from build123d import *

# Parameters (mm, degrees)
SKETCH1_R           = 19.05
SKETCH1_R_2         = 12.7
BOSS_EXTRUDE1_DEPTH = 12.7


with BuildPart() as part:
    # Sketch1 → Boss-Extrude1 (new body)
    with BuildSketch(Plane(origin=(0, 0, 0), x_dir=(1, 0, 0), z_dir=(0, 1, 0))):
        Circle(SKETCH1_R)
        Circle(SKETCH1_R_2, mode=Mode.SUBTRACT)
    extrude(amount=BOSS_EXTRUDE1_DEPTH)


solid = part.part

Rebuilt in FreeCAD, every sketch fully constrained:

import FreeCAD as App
import Part
import Sketcher
from FreeCAD import Vector
Q = App.Units.Quantity

doc = App.newDocument("Part")
body = doc.addObject("PartDesign::Body", "Body")

# Sketch on XZ plane
sketch1 = body.newObject("Sketcher::SketchObject", "Sketch")
sketch1.AttachmentSupport = (doc.getObject("XZ_Plane"), [""])
sketch1.MapMode = "FlatFace"
sketch1.addGeometry(Part.Circle(Vector(0, 0, 0), Vector(0, 0, 1), 19), False)
sketch1.addGeometry(Part.Circle(Vector(0, 0, 0), Vector(0, 0, 1), 13), False)
sketch1.addConstraint(Sketcher.Constraint("Coincident", 0, 3, -1, 1))
sketch1.addConstraint(Sketcher.Constraint("Coincident", 1, 3, -1, 1))
sketch1.addConstraint(Sketcher.Constraint("Diameter", 1, Q("1 in")))
sketch1.addConstraint(Sketcher.Constraint("Diameter", 0, Q("1.5 in")))
pad1 = body.newObject("PartDesign::Pad", "Pad")
pad1.Profile = sketch1
pad1.Length = Q("0.5 in")
pad1.Reversed = True

doc.recompute()
